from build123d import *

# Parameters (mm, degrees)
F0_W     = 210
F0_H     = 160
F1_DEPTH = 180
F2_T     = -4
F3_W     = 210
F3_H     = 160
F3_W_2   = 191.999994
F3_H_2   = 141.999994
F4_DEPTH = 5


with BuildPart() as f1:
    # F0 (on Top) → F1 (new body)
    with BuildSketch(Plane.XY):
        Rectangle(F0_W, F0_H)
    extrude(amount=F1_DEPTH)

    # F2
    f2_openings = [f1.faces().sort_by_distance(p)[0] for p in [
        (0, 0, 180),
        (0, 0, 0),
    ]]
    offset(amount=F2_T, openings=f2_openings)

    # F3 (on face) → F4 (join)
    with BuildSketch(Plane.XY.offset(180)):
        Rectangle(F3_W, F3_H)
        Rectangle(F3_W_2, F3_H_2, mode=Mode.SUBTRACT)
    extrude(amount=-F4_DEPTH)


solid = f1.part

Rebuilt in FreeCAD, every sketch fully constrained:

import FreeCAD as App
import Part
import Sketcher

V = App.Vector


def faces_at(feature, points):
    """Names of the faces that lie closest to the given points."""
    faces = feature.Shape.Faces
    near = lambda p: min(range(len(faces)), key=lambda i: faces[i].distToShape(Part.Vertex(*p))[0])
    return sorted({f"Face{near(p) + 1}" for p in points})

doc = App.newDocument("Part")
params = doc.addObject("Spreadsheet::Sheet", "Params")
for row, (alias, value) in enumerate([
    ("sketch1_width", "210 mm"),
    ("sketch1_height", "160 mm"),
    ("pad1_length", "180 mm"),
    ("thickness_wall", "4 mm"),
    ("sketch2_width", "210 mm"),
    ("sketch2_height", "160 mm"),
    ("pad2_length", "5 mm"),
], start=1):
    params.set(f"A{row}", alias)
    params.set(f"B{row}", "=" + value)
    params.setAlias(f"B{row}", alias)

body = doc.addObject("PartDesign::Body", "Body")

sketch1 = body.newObject("Sketcher::SketchObject", "Sketch")
sketch1.AttachmentSupport = (doc.getObject("XY_Plane"), [""])
sketch1.MapMode = "FlatFace"
sketch1.addGeometry(Part.LineSegment(V(-105, 80, 0), V(-105, -80, 0)), False)
sketch1.addGeometry(Part.LineSegment(V(-105, -80, 0), V(105, -80, 0)), False)
sketch1.addGeometry(Part.LineSegment(V(105, -80, 0), V(105, 80, 0)), False)
sketch1.addGeometry(Part.LineSegment(V(105, 80, 0), V(-105, 80, 0)), False)
sketch1.addConstraint(Sketcher.Constraint("Coincident", 0, 2, 1, 1))
sketch1.addConstraint(Sketcher.Constraint("Coincident", 1, 2, 2, 1))
sketch1.addConstraint(Sketcher.Constraint("Coincident", 2, 2, 3, 1))
sketch1.addConstraint(Sketcher.Constraint("Coincident", 3, 2, 0, 1))
sketch1.addConstraint(Sketcher.Constraint("Vertical", 0))
sketch1.addConstraint(Sketcher.Constraint("Horizontal", 1))
sketch1.addConstraint(Sketcher.Constraint("Vertical", 2))
sketch1.addConstraint(Sketcher.Constraint("Horizontal", 3))
sketch1.addConstraint(Sketcher.Constraint("Symmetric", 0, 2, 2, 2, -1, 1))
sketch1.addConstraint(Sketcher.Constraint("DistanceX", 1, 1, 1, 2, 210.0))
sketch1.addConstraint(Sketcher.Constraint("DistanceY", 0, 2, 0, 1, 160.0))
sketch1.setExpression("Constraints[9]", "Params.sketch1_width")
sketch1.setExpression("Constraints[10]", "Params.sketch1_height")
pad1 = body.newObject("PartDesign::Pad", "Pad")
pad1.Profile = sketch1
pad1.setExpression("Length", "Params.pad1_length")
doc.recompute()

thickness = body.newObject("PartDesign::Thickness", "Thickness")
thickness.Base = (pad1, faces_at(pad1, [(0, 0, 180), (0, 0, 0)]))
thickness.setExpression("Value", "Params.thickness_wall")
thickness.Reversed = True
thickness.Join = "Arc"

sketch2 = body.newObject("Sketcher::SketchObject", "Sketch001")
sketch2.AttachmentSupport = (doc.getObject("XY_Plane"), [""])
sketch2.MapMode = "FlatFace"
sketch2.AttachmentOffset = App.Placement(V(0, 0, 180), App.Rotation())
sketch2.addGeometry(Part.LineSegment(V(-105, 80, 0), V(-105, -80, 0)), False)
sketch2.addGeometry(Part.LineSegment(V(-105, -80, 0), V(105, -80, 0)), False)
sketch2.addGeometry(Part.LineSegment(V(105, -80, 0), V(105, 80, 0)), False)
sketch2.addGeometry(Part.LineSegment(V(105, 80, 0), V(-105, 80, 0)), False)
sketch2.addGeometry(Part.LineSegment(V(95.999997, -70.999997, 0), V(-95.999997, -70.999997, 0)), False)
sketch2.addGeometry(Part.LineSegment(V(-95.999997, -70.999997, 0), V(-95.999997, 70.999997, 0)), False)
sketch2.addGeometry(Part.LineSegment(V(-95.999997, 70.999997, 0), V(95.999997, 70.999997, 0)), False)
sketch2.addGeometry(Part.LineSegment(V(95.999997, 70.999997, 0), V(95.999997, -70.999997, 0)), False)
sketch2.addConstraint(Sketcher.Constraint("Coincident", 0, 2, 1, 1))
sketch2.addConstraint(Sketcher.Constraint("Coincident", 1, 2, 2, 1))
sketch2.addConstraint(Sketcher.Constraint("Coincident", 2, 2, 3, 1))
sketch2.addConstraint(Sketcher.Constraint("Coincident", 3, 2, 0, 1))
sketch2.addConstraint(Sketcher.Constraint("Coincident", 4, 2, 5, 1))
sketch2.addConstraint(Sketcher.Constraint("Coincident", 5, 2, 6, 1))
sketch2.addConstraint(Sketcher.Constraint("Coincident", 6, 2, 7, 1))
sketch2.addConstraint(Sketcher.Constraint("Coincident", 7, 2, 4, 1))
sketch2.addConstraint(Sketcher.Constraint("Vertical", 0))
sketch2.addConstraint(Sketcher.Constraint("Horizontal", 1))
sketch2.addConstraint(Sketcher.Constraint("Vertical", 2))
sketch2.addConstraint(Sketcher.Constraint("Horizontal", 3))
sketch2.addConstraint(Sketcher.Constraint("Horizontal", 4))
sketch2.addConstraint(Sketcher.Constraint("Vertical", 5))
sketch2.addConstraint(Sketcher.Constraint("Horizontal", 6))
sketch2.addConstraint(Sketcher.Constraint("Vertical", 7))
sketch2.addConstraint(Sketcher.Constraint("Symmetric", 0, 2, 2, 2, -1, 1))
sketch2.addConstraint(Sketcher.Constraint("Symmetric", 4, 2, 6, 2, -1, 1))
sketch2.addConstraint(Sketcher.Constraint("DistanceX", 1, 1, 1, 2, 210.0))
sketch2.addConstraint(Sketcher.Constraint("DistanceY", 0, 2, 0, 1, 160.0))
sketch2.addConstraint(Sketcher.Constraint("DistanceX", 4, 2, 4, 1, 191.999994))
sketch2.addConstraint(Sketcher.Constraint("DistanceY", 5, 1, 5, 2, 141.999994))
sketch2.setExpression("Constraints[18]", "Params.sketch2_width")
sketch2.setExpression("Constraints[19]", "Params.sketch2_height")
pad2 = body.newObject("PartDesign::Pad", "Pad001")
pad2.Profile = sketch2
pad2.setExpression("Length", "Params.pad2_length")
pad2.Reversed = True

doc.recompute()
